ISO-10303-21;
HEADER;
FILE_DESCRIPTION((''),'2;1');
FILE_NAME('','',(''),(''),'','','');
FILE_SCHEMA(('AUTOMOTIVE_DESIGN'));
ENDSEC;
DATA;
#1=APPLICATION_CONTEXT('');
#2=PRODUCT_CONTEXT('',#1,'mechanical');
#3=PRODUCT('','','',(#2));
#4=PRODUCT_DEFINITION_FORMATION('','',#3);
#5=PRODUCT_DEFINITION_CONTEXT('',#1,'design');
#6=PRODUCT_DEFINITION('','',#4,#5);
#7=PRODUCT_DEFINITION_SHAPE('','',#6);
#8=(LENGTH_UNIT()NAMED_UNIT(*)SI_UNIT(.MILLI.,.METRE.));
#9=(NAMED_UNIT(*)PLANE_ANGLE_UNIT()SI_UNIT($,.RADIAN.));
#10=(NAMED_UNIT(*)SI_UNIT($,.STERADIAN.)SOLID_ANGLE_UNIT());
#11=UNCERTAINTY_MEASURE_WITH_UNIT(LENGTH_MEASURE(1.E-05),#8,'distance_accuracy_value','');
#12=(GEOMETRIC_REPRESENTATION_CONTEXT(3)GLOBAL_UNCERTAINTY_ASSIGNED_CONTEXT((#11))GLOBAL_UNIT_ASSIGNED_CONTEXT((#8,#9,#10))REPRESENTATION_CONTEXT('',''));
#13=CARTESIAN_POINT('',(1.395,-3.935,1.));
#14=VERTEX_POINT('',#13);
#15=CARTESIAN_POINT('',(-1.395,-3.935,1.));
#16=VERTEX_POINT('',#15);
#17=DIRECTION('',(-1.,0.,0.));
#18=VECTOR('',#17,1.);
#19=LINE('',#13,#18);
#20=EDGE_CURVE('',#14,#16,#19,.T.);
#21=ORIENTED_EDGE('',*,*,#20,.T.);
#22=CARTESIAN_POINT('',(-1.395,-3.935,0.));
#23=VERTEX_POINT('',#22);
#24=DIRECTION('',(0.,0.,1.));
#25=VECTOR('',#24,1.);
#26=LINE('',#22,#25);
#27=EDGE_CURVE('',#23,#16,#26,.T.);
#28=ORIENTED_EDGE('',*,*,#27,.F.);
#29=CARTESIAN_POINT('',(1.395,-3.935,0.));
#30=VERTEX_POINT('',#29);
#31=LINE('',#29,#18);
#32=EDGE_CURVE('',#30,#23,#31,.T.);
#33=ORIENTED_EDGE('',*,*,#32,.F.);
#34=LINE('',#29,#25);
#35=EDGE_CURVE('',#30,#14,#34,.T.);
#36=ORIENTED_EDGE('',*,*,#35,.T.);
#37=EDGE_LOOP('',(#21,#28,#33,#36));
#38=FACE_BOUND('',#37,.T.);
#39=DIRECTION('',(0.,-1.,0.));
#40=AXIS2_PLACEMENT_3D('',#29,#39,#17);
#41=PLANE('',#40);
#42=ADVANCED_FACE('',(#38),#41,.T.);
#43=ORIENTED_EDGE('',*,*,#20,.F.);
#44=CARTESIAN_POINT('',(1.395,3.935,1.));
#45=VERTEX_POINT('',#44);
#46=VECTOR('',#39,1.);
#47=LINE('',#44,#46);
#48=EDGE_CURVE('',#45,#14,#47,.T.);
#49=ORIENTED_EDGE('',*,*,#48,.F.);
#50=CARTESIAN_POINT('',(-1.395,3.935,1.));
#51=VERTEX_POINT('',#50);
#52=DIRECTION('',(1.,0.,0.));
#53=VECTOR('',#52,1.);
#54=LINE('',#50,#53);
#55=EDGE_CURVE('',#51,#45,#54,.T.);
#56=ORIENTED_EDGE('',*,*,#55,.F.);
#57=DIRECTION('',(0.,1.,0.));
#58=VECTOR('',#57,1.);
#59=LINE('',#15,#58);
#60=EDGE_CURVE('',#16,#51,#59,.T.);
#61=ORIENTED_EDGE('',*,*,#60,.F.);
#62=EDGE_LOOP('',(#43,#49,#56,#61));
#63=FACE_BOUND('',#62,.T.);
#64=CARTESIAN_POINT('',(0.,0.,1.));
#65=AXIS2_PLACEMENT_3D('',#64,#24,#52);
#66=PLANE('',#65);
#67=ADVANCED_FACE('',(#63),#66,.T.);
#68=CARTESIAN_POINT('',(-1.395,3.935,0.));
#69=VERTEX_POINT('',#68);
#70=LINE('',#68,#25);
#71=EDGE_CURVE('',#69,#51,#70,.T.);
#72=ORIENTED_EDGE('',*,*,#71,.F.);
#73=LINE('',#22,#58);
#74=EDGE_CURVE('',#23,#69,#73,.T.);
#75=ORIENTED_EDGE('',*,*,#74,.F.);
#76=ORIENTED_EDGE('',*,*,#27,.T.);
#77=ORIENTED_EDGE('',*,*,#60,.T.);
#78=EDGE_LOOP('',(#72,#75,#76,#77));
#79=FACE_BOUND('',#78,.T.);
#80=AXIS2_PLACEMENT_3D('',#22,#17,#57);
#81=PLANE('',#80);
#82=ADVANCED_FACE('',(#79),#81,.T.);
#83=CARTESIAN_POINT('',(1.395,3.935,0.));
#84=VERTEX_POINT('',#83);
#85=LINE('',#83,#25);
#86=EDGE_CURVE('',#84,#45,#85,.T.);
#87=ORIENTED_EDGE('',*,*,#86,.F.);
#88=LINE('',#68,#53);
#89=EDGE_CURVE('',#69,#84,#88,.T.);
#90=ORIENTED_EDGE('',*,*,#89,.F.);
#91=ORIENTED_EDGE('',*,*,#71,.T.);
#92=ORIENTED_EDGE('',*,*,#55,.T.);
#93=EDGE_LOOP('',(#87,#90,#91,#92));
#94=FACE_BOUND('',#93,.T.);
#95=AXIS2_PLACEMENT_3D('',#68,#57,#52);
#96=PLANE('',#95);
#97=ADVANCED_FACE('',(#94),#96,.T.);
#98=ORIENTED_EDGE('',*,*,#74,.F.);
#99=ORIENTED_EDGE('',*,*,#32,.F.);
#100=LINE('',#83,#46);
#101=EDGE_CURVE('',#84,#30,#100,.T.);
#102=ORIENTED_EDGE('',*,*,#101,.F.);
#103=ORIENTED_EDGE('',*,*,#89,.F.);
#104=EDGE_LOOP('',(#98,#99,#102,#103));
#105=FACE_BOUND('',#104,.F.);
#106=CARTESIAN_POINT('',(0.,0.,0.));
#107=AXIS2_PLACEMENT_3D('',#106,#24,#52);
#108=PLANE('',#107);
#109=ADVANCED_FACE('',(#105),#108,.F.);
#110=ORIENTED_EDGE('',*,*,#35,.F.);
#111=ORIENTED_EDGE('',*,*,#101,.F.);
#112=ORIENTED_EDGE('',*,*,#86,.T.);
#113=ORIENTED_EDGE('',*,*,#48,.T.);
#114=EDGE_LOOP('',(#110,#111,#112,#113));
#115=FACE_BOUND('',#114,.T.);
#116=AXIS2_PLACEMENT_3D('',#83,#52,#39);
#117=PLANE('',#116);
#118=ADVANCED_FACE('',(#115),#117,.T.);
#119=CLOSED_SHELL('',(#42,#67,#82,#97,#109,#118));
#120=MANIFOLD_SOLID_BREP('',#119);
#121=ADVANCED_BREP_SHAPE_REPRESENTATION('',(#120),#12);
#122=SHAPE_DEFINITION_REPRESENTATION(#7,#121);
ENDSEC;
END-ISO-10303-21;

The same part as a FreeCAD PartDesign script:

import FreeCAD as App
import Part
import Sketcher

V = App.Vector
Q = App.Units.Quantity

doc = App.newDocument("Part")
body = doc.addObject("PartDesign::Body", "Body")

sketch1 = body.newObject("Sketcher::SketchObject", "Sketch")
sketch1.AttachmentSupport = (doc.getObject("XY_Plane"), [""])
sketch1.MapMode = "FlatFace"
sketch1.addGeometry([
    Part.LineSegment(V(-1.4, 3.9, 0), V(-1.4, -3.9, 0)),
    Part.LineSegment(V(-1.4, -3.9, 0), V(1.4, -3.9, 0)),
    Part.LineSegment(V(1.4, -3.9, 0), V(1.4, 3.9, 0)),
    Part.LineSegment(V(1.4, 3.9, 0), V(-1.4, 3.9, 0)),
], False)
sketch1.addConstraint([
    Sketcher.Constraint("Coincident", 0, 2, 1, 1),
    Sketcher.Constraint("Coincident", 1, 2, 2, 1),
    Sketcher.Constraint("Coincident", 2, 2, 3, 1),
    Sketcher.Constraint("Coincident", 3, 2, 0, 1),
    Sketcher.Constraint("Vertical", 0),
    Sketcher.Constraint("Horizontal", 1),
    Sketcher.Constraint("Vertical", 2),
    Sketcher.Constraint("Horizontal", 3),
    Sketcher.Constraint("Symmetric", 0, 2, 2, 2, -1, 1),
    Sketcher.Constraint("DistanceX", 1, 1, 1, 2, Q("2.79 mm")),
    Sketcher.Constraint("DistanceY", 0, 2, 0, 1, Q("7.87 mm")),
])
pad1 = body.newObject("PartDesign::Pad", "Pad")
pad1.Profile = sketch1
pad1.Length = 1

doc.recompute()
